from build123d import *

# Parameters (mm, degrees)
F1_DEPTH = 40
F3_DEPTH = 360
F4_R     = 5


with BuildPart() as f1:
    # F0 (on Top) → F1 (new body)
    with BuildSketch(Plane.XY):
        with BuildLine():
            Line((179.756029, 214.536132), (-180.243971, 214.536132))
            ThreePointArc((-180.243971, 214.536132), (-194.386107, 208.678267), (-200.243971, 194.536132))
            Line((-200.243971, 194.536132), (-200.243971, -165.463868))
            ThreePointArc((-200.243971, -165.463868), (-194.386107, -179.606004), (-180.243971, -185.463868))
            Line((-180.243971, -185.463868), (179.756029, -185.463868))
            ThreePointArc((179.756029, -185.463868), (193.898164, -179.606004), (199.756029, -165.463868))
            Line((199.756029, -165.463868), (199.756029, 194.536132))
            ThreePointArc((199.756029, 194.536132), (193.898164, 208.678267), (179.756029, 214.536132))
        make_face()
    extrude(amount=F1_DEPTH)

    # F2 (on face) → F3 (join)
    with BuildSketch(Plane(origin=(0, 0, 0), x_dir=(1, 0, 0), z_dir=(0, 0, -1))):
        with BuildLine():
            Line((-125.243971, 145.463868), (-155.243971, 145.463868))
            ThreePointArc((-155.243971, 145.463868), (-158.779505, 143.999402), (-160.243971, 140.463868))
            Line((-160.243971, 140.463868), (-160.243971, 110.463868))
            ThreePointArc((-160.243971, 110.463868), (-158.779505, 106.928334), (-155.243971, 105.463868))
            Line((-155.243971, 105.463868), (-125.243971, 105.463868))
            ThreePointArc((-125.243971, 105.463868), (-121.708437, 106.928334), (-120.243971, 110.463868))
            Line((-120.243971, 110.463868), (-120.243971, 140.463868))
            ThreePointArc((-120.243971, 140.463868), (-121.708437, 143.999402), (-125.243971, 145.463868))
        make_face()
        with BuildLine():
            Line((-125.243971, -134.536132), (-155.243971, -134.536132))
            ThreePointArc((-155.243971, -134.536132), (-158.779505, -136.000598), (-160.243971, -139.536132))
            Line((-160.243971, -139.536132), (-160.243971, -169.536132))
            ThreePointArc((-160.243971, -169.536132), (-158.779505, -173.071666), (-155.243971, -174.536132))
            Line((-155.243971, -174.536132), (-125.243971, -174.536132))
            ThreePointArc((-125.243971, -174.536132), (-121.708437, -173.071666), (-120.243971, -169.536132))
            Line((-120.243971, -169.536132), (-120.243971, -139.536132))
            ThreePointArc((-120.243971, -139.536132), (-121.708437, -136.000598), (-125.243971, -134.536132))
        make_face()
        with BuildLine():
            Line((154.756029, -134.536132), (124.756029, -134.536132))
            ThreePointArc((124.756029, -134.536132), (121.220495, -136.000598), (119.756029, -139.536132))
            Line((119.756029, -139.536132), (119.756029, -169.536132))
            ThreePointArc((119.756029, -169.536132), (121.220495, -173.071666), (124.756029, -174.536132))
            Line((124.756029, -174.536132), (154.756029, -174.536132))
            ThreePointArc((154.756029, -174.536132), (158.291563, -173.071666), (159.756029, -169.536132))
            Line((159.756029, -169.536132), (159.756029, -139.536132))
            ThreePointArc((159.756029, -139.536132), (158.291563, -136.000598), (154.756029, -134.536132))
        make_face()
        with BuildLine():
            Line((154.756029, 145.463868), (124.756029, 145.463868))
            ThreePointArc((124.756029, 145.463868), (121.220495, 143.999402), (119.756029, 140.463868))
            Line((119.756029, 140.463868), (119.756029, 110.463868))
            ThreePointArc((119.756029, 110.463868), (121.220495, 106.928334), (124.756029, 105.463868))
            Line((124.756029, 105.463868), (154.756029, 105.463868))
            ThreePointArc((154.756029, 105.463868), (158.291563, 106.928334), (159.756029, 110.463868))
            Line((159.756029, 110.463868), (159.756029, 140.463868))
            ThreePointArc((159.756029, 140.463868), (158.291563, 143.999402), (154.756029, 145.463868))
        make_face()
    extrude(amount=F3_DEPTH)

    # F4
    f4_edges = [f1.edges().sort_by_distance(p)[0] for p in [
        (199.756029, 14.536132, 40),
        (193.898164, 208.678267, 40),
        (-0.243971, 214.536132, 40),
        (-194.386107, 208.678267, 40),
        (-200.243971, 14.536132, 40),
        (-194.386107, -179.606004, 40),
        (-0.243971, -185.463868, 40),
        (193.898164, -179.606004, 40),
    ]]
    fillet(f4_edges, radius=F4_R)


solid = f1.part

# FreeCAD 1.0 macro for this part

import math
import FreeCAD as App
import Part
import Sketcher
from FreeCAD import Vector
Q = App.Units.Quantity


def edges_at(feature, points):
    """Names of the edges that pass closest to the given points."""
    edges = feature.Shape.Edges
    near = lambda p: min(range(len(edges)), key=lambda i: edges[i].distToShape(Part.Vertex(*p))[0])
    return sorted({f"Edge{near(p) + 1}" for p in points})

doc = App.newDocument("Part")
body = doc.addObject("PartDesign::Body", "Body")

# Sketch on XY plane
sketch1 = doc.addObject("Sketcher::SketchObject", "Sketch")
body.addObject(sketch1)
sketch1.AttachmentSupport = (doc.XY_Plane, [""])
sketch1.MapMode = "FlatFace"
sketch1.addGeometry(Part.LineSegment(Vector(180, 215, 0), Vector(-180, 215, 0)), False)
sketch1.addGeometry(Part.ArcOfCircle(Part.Circle(Vector(-180, 195, 0), Vector(0, 0, 1), 20), math.radians(90), math.radians(180)), False)
sketch1.addGeometry(Part.LineSegment(Vector(-200, 195, 0), Vector(-200, -165, 0)), False)
sketch1.addGeometry(Part.ArcOfCircle(Part.Circle(Vector(-180, -165, 0), Vector(0, 0, 1), 20), math.radians(180), math.radians(270)), False)
sketch1.addGeometry(Part.LineSegment(Vector(-180, -185, 0), Vector(180, -185, 0)), False)
sketch1.addGeometry(Part.ArcOfCircle(Part.Circle(Vector(180, -165, 0), Vector(0, 0, 1), 20), math.radians(-90), math.radians(0)), False)
sketch1.addGeometry(Part.LineSegment(Vector(200, -165, 0), Vector(200, 195, 0)), False)
sketch1.addGeometry(Part.ArcOfCircle(Part.Circle(Vector(180, 195, 0), Vector(0, 0, 1), 20), math.radians(0), math.radians(90)), False)
sketch1.addConstraint(Sketcher.Constraint("Tangent", 0, 2, 1, 1))
sketch1.addConstraint(Sketcher.Constraint("Tangent", 1, 2, 2, 1))
sketch1.addConstraint(Sketcher.Constraint("Tangent", 2, 2, 3, 1))
sketch1.addConstraint(Sketcher.Constraint("Tangent", 3, 2, 4, 1))
sketch1.addConstraint(Sketcher.Constraint("Tangent", 4, 2, 5, 1))
sketch1.addConstraint(Sketcher.Constraint("Tangent", 5, 2, 6, 1))
sketch1.addConstraint(Sketcher.Constraint("Tangent", 6, 2, 7, 1))
sketch1.addConstraint(Sketcher.Constraint("Tangent", 7, 2, 0, 1))
sketch1.addConstraint(Sketcher.Constraint("Horizontal", 0))
sketch1.addConstraint(Sketcher.Constraint("Vertical", 2))
sketch1.addConstraint(Sketcher.Constraint("Horizontal", 4))
sketch1.addConstraint(Sketcher.Constraint("Vertical", 6))
sketch1.addConstraint(Sketcher.Constraint("Equal", 1, 3))
sketch1.addConstraint(Sketcher.Constraint("Equal", 3, 5))
sketch1.addConstraint(Sketcher.Constraint("Equal", 5, 7))
sketch1.addConstraint(Sketcher.Constraint("Equal", 4, 2))
sketch1.addConstraint(Sketcher.Constraint("Radius", 1, Q("20 mm")))
sketch1.addConstraint(Sketcher.Constraint("DistanceX", 0, 2, 0, 1, Q("360 mm")))
sketch1.addConstraint(Sketcher.Constraint("DistanceX", 1, 3, -1, 1, Q("180.243971 mm")))
sketch1.addConstraint(Sketcher.Constraint("DistanceY", -1, 1, 1, 3, Q("194.536132 mm")))
pad1 = doc.addObject("PartDesign::Pad", "Pad")
body.addObject(pad1)
pad1.Profile = sketch1
pad1.Length = 40

# Sketch on XY plane
sketch2 = doc.addObject("Sketcher::SketchObject", "Sketch001")
body.addObject(sketch2)
sketch2.AttachmentSupport = (doc.XY_Plane, [""])
sketch2.MapMode = "FlatFace"
sketch2.addGeometry(Part.LineSegment(Vector(-125.2, -145.5, 0), Vector(-155.2, -145.5, 0)), False)
sketch2.addGeometry(Part.ArcOfCircle(Part.Circle(Vector(-155.2, -140.5, 0), Vector(0, 0, 1), 5), math.radians(180), math.radians(270)), False)
sketch2.addGeometry(Part.LineSegment(Vector(-160.2, -140.5, 0), Vector(-160.2, -110.5, 0)), False)
sketch2.addGeometry(Part.ArcOfCircle(Part.Circle(Vector(-155.2, -110.5, 0), Vector(0, 0, 1), 5), math.radians(90), math.radians(180)), False)
sketch2.addGeometry(Part.LineSegment(Vector(-155.2, -105.5, 0), Vector(-125.2, -105.5, 0)), False)
sketch2.addGeometry(Part.ArcOfCircle(Part.Circle(Vector(-125.2, -110.5, 0), Vector(0, 0, 1), 5), math.radians(0), math.radians(90)), False)
sketch2.addGeometry(Part.LineSegment(Vector(-120.2, -110.5, 0), Vector(-120.2, -140.5, 0)), False)
sketch2.addGeometry(Part.ArcOfCircle(Part.Circle(Vector(-125.2, -140.5, 0), Vector(0, 0, 1), 5), math.radians(-90), math.radians(0)), False)
sketch2.addGeometry(Part.LineSegment(Vector(-125.2, 134.5, 0), Vector(-155.2, 134.5, 0)), False)
sketch2.addGeometry(Part.ArcOfCircle(Part.Circle(Vector(-155.2, 139.5, 0), Vector(0, 0, 1), 5), math.radians(180), math.radians(270)), False)
sketch2.addGeometry(Part.LineSegment(Vector(-160.2, 139.5, 0), Vector(-160.2, 169.5, 0)), False)
sketch2.addGeometry(Part.ArcOfCircle(Part.Circle(Vector(-155.2, 169.5, 0), Vector(0, 0, 1), 5), math.radians(90), math.radians(180)), False)
sketch2.addGeometry(Part.LineSegment(Vector(-155.2, 174.5, 0), Vector(-125.2, 174.5, 0)), False)
sketch2.addGeometry(Part.ArcOfCircle(Part.Circle(Vector(-125.2, 169.5, 0), Vector(0, 0, 1), 5), math.radians(0), math.radians(90)), False)
sketch2.addGeometry(Part.LineSegment(Vector(-120.2, 169.5, 0), Vector(-120.2, 139.5, 0)), False)
sketch2.addGeometry(Part.ArcOfCircle(Part.Circle(Vector(-125.2, 139.5, 0), Vector(0, 0, 1), 5), math.radians(-90), math.radians(0)), False)
sketch2.addGeometry(Part.LineSegment(Vector(154.8, 134.5, 0), Vector(124.8, 134.5, 0)), False)
sketch2.addGeometry(Part.ArcOfCircle(Part.Circle(Vector(124.8, 139.5, 0), Vector(0, 0, 1), 5), math.radians(180), math.radians(270)), False)
sketch2.addGeometry(Part.LineSegment(Vector(119.8, 139.5, 0), Vector(119.8, 169.5, 0)), False)
sketch2.addGeometry(Part.ArcOfCircle(Part.Circle(Vector(124.8, 169.5, 0), Vector(0, 0, 1), 5), math.radians(90), math.radians(180)), False)
sketch2.addGeometry(Part.LineSegment(Vector(124.8, 174.5, 0), Vector(154.8, 174.5, 0)), False)
sketch2.addGeometry(Part.ArcOfCircle(Part.Circle(Vector(154.8, 169.5, 0), Vector(0, 0, 1), 5), math.radians(0), math.radians(90)), False)
sketch2.addGeometry(Part.LineSegment(Vector(159.8, 169.5, 0), Vector(159.8, 139.5, 0)), False)
sketch2.addGeometry(Part.ArcOfCircle(Part.Circle(Vector(154.8, 139.5, 0), Vector(0, 0, 1), 5), math.radians(-90), math.radians(0)), False)
sketch2.addGeometry(Part.LineSegment(Vector(154.8, -145.5, 0), Vector(124.8, -145.5, 0)), False)
sketch2.addGeometry(Part.ArcOfCircle(Part.Circle(Vector(124.8, -140.5, 0), Vector(0, 0, 1), 5), math.radians(180), math.radians(270)), False)
sketch2.addGeometry(Part.LineSegment(Vector(119.8, -140.5, 0), Vector(119.8, -110.5, 0)), False)
sketch2.addGeometry(Part.ArcOfCircle(Part.Circle(Vector(124.8, -110.5, 0), Vector(0, 0, 1), 5), math.radians(90), math.radians(180)), False)
sketch2.addGeometry(Part.LineSegment(Vector(124.8, -105.5, 0), Vector(154.8, -105.5, 0)), False)
sketch2.addGeometry(Part.ArcOfCircle(Part.Circle(Vector(154.8, -110.5, 0), Vector(0, 0, 1), 5), math.radians(0), math.radians(90)), False)
sketch2.addGeometry(Part.LineSegment(Vector(159.8, -110.5, 0), Vector(159.8, -140.5, 0)), False)
sketch2.addGeometry(Part.ArcOfCircle(Part.Circle(Vector(154.8, -140.5, 0), Vector(0, 0, 1), 5), math.radians(-90), math.radians(0)), False)
sketch2.addConstraint(Sketcher.Constraint("Tangent", 0, 2, 1, 2))
sketch2.addConstraint(Sketcher.Constraint("Tangent", 1, 1, 2, 1))
sketch2.addConstraint(Sketcher.Constraint("Tangent", 2, 2, 3, 2))
sketch2.addConstraint(Sketcher.Constraint("Tangent", 3, 1, 4, 1))
sketch2.addConstraint(Sketcher.Constraint("Tangent", 4, 2, 5, 2))
sketch2.addConstraint(Sketcher.Constraint("Tangent", 5, 1, 6, 1))
sketch2.addConstraint(Sketcher.Constraint("Tangent", 6, 2, 7, 2))
sketch2.addConstraint(Sketcher.Constraint("Tangent", 7, 1, 0, 1))
sketch2.addConstraint(Sketcher.Constraint("Tangent", 8, 2, 9, 2))
sketch2.addConstraint(Sketcher.Constraint("Tangent", 9, 1, 10, 1))
sketch2.addConstraint(Sketcher.Constraint("Tangent", 10, 2, 11, 2))
sketch2.addConstraint(Sketcher.Constraint("Tangent", 11, 1, 12, 1))
sketch2.addConstraint(Sketcher.Constraint("Tangent", 12, 2, 13, 2))
sketch2.addConstraint(Sketcher.Constraint("Tangent", 13, 1, 14, 1))
sketch2.addConstraint(Sketcher.Constraint("Tangent", 14, 2, 15, 2))
sketch2.addConstraint(Sketcher.Constraint("Tangent", 15, 1, 8, 1))
sketch2.addConstraint(Sketcher.Constraint("Tangent", 16, 2, 17, 2))
sketch2.addConstraint(Sketcher.Constraint("Tangent", 17, 1, 18, 1))
sketch2.addConstraint(Sketcher.Constraint("Tangent", 18, 2, 19, 2))
sketch2.addConstraint(Sketcher.Constraint("Tangent", 19, 1, 20, 1))
sketch2.addConstraint(Sketcher.Constraint("Tangent", 20, 2, 21, 2))
sketch2.addConstraint(Sketcher.Constraint("Tangent", 21, 1, 22, 1))
sketch2.addConstraint(Sketcher.Constraint("Tangent", 22, 2, 23, 2))
sketch2.addConstraint(Sketcher.Constraint("Tangent", 23, 1, 16, 1))
sketch2.addConstraint(Sketcher.Constraint("Tangent", 24, 2, 25, 2))
sketch2.addConstraint(Sketcher.Constraint("Tangent", 25, 1, 26, 1))
sketch2.addConstraint(Sketcher.Constraint("Tangent", 26, 2, 27, 2))
sketch2.addConstraint(Sketcher.Constraint("Tangent", 27, 1, 28, 1))
sketch2.addConstraint(Sketcher.Constraint("Tangent", 28, 2, 29, 2))
sketch2.addConstraint(Sketcher.Constraint("Tangent", 29, 1, 30, 1))
sketch2.addConstraint(Sketcher.Constraint("Tangent", 30, 2, 31, 2))
sketch2.addConstraint(Sketcher.Constraint("Tangent", 31, 1, 24, 1))
sketch2.addConstraint(Sketcher.Constraint("Horizontal", 0))
sketch2.addConstraint(Sketcher.Constraint("Vertical", 2))
sketch2.addConstraint(Sketcher.Constraint("Horizontal", 4))
sketch2.addConstraint(Sketcher.Constraint("Vertical", 6))
sketch2.addConstraint(Sketcher.Constraint("Horizontal", 8))
sketch2.addConstraint(Sketcher.Constraint("Vertical", 10))
sketch2.addConstraint(Sketcher.Constraint("Horizontal", 12))
sketch2.addConstraint(Sketcher.Constraint("Vertical", 14))
sketch2.addConstraint(Sketcher.Constraint("Horizontal", 16))
sketch2.addConstraint(Sketcher.Constraint("Vertical", 18))
sketch2.addConstraint(Sketcher.Constraint("Horizontal", 20))
sketch2.addConstraint(Sketcher.Constraint("Vertical", 22))
sketch2.addConstraint(Sketcher.Constraint("Horizontal", 24))
sketch2.addConstraint(Sketcher.Constraint("Vertical", 26))
sketch2.addConstraint(Sketcher.Constraint("Horizontal", 28))
sketch2.addConstraint(Sketcher.Constraint("Vertical", 30))
sketch2.addConstraint(Sketcher.Constraint("Equal", 1, 3))
sketch2.addConstraint(Sketcher.Constraint("Equal", 3, 5))
sketch2.addConstraint(Sketcher.Constraint("Equal", 5, 7))
sketch2.addConstraint(Sketcher.Constraint("Equal", 7, 9))
sketch2.addConstraint(Sketcher.Constraint("Equal", 9, 11))
sketch2.addConstraint(Sketcher.Constraint("Equal", 11, 13))
sketch2.addConstraint(Sketcher.Constraint("Equal", 13, 15))
sketch2.addConstraint(Sketcher.Constraint("Equal", 15, 17))
sketch2.addConstraint(Sketcher.Constraint("Equal", 17, 19))
sketch2.addConstraint(Sketcher.Constraint("Equal", 19, 21))
sketch2.addConstraint(Sketcher.Constraint("Equal", 21, 23))
sketch2.addConstraint(Sketcher.Constraint("Equal", 23, 25))
sketch2.addConstraint(Sketcher.Constraint("Equal", 25, 27))
sketch2.addConstraint(Sketcher.Constraint("Equal", 27, 29))
sketch2.addConstraint(Sketcher.Constraint("Equal", 29, 31))
sketch2.addConstraint(Sketcher.Constraint("Horizontal", 15, 3, 17, 3))
sketch2.addConstraint(Sketcher.Constraint("Horizontal", 13, 3, 19, 3))
sketch2.addConstraint(Sketcher.Constraint("Horizontal", 7, 3, 25, 3))
sketch2.addConstraint(Sketcher.Constraint("Horizontal", 5, 3, 27, 3))
sketch2.addConstraint(Sketcher.Constraint("Vertical", 3, 3, 9, 3))
sketch2.addConstraint(Sketcher.Constraint("Vertical", 7, 3, 13, 3))
sketch2.addConstraint(Sketcher.Constraint("Vertical", 19, 3, 25, 3))
sketch2.addConstraint(Sketcher.Constraint("Vertical", 23, 3, 29, 3))
sketch2.addConstraint(Sketcher.Constraint("Equal", 12, 16))
sketch2.addConstraint(Sketcher.Constraint("Equal", 28, 2))
sketch2.addConstraint(Sketcher.Constraint("Equal", 6, 10))
sketch2.addConstraint(Sketcher.Constraint("Radius", 1, Q("5 mm")))
sketch2.addConstraint(Sketcher.Constraint("DistanceX", 0, 2, 0, 1, Q("30 mm")))
sketch2.addConstraint(Sketcher.Constraint("DistanceY", 3, 3, 9, 3, Q("249.999999 mm")))
sketch2.addConstraint(Sketcher.Constraint("DistanceX", 15, 3, 17, 3, Q("249.999999 mm")))
sketch2.addConstraint(Sketcher.Constraint("DistanceX", 1, 3, -1, 1, Q("155.243971 mm")))
sketch2.addConstraint(Sketcher.Constraint("DistanceY", 1, 3, -1, 1, Q("140.463868 mm")))
pad2 = doc.addObject("PartDesign::Pad", "Pad001")
body.addObject(pad2)
pad2.Profile = sketch2
pad2.Length = 360
pad2.Reversed = True
doc.recompute()

fillet = doc.addObject("PartDesign::Fillet", "Fillet")
body.addObject(fillet)
fillet.Base = (pad2, edges_at(pad2, [
    (199.756, 14.536, 40),
    (193.898, 208.678, 40),
    (-0.244, 214.536, 40),
    (-194.386, 208.678, 40),
    (-200.244, 14.536, 40),
    (-194.386, -179.606, 40),
    (-0.244, -185.464, 40),
    (193.898, -179.606, 40),
]))
fillet.Radius = 5

doc.recompute()
